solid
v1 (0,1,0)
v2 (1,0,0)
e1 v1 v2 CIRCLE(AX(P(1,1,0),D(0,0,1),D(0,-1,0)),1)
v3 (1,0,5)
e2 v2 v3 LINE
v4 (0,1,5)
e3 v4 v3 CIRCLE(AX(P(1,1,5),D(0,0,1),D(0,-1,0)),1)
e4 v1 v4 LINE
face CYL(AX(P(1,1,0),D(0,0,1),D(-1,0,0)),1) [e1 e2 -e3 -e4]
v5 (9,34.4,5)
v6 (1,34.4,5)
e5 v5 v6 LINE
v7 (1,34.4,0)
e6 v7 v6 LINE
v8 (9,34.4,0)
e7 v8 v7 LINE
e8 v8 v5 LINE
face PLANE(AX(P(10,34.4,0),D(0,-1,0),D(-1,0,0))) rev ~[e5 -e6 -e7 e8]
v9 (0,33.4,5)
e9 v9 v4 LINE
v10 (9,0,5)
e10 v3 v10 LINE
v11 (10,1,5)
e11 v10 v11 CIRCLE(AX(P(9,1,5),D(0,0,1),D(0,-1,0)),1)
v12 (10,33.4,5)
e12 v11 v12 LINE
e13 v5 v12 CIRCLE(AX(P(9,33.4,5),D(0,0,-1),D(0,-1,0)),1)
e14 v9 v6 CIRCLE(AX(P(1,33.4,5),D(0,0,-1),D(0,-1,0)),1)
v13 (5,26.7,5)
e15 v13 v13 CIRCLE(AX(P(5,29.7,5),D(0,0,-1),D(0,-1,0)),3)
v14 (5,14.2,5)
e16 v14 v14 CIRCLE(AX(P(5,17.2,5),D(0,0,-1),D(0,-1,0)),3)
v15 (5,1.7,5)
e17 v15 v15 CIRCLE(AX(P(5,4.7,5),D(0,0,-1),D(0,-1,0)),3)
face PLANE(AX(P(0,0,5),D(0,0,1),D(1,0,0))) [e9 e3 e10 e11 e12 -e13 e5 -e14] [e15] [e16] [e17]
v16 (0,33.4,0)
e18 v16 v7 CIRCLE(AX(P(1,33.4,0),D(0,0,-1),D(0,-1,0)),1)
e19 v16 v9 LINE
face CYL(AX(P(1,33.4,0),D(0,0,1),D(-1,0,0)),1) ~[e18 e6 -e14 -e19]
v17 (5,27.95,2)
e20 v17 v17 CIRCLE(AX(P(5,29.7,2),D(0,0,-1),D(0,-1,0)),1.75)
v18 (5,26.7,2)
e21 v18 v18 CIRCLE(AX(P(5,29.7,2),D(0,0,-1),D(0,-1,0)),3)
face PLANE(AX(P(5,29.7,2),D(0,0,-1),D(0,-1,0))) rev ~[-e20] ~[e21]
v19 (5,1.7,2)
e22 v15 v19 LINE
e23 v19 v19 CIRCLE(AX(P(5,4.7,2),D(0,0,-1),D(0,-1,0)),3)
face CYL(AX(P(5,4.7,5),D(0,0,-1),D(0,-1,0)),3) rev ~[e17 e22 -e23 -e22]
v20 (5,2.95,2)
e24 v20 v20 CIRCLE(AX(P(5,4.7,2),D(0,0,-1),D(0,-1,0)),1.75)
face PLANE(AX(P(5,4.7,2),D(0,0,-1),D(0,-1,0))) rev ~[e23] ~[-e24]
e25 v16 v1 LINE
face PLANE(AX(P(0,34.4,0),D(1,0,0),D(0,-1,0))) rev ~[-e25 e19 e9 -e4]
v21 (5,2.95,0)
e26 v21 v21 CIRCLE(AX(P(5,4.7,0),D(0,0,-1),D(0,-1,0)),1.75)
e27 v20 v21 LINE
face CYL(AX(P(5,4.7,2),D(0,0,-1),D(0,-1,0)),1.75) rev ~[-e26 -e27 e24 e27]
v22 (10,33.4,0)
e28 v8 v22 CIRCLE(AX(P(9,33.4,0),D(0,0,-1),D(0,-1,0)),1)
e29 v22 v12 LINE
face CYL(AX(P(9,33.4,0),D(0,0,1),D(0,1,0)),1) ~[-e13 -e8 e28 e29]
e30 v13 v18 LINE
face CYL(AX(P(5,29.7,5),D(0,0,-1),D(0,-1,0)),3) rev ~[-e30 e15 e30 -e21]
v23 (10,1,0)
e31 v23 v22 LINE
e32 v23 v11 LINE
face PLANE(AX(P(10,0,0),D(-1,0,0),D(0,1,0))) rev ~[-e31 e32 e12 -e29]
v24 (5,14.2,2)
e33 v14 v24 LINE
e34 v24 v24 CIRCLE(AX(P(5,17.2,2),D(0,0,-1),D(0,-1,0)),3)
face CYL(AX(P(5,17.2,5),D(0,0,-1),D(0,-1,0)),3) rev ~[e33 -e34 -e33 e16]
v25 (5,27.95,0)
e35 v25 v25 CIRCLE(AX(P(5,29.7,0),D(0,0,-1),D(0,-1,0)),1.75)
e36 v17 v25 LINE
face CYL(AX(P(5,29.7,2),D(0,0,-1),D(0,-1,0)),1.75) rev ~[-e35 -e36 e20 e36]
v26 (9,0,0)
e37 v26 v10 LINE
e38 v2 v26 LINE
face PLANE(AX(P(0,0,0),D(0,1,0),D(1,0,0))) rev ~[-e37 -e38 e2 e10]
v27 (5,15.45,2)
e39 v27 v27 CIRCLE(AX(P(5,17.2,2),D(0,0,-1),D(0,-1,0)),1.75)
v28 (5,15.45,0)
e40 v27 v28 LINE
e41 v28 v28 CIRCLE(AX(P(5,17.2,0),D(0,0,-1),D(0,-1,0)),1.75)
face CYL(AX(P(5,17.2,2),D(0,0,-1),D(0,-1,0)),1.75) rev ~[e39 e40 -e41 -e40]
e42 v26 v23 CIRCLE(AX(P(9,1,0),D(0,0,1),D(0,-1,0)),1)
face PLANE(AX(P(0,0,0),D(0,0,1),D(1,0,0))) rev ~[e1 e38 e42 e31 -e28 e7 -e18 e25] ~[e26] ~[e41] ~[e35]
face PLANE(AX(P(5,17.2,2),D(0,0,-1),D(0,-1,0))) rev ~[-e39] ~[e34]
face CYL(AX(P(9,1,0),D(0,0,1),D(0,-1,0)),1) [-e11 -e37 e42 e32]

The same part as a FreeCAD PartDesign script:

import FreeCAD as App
import Part
import Sketcher
Q = App.Units.Quantity


def edges_at(feature, points):
    """Names of the edges that pass closest to the given points."""
    edges = feature.Shape.Edges
    near = lambda p: min(range(len(edges)), key=lambda i: edges[i].distToShape(Part.Vertex(*p))[0])
    return sorted({f"Edge{near(p) + 1}" for p in points})


def add_polygon(sketch, points):
    """Adds a closed chain of lines whose ends are joined by coincident constraints."""
    first, n = sketch.GeometryCount, len(points)
    for a, b in zip(points, points[1:] + points[:1]):
        sketch.addGeometry(Part.LineSegment(App.Vector(*a, 0), App.Vector(*b, 0)), False)
    for i in range(n):
        sketch.addConstraint(Sketcher.Constraint("Coincident", first + i, 2, first + (i + 1) % n, 1))

doc = App.newDocument("Part")
body = doc.addObject("PartDesign::Body", "Body")

sketch1 = body.newObject("Sketcher::SketchObject", "Sketch")
sketch1.AttachmentSupport = (doc.getObject("XY_Plane"), [""])
sketch1.MapMode = "FlatFace"
add_polygon(sketch1, [(0, 34.4), (0, 0), (10, 0), (10, 34.4)])
sketch1.addConstraint([
    Sketcher.Constraint("Vertical", 0),
    Sketcher.Constraint("Horizontal", 1),
    Sketcher.Constraint("Vertical", 2),
    Sketcher.Constraint("Horizontal", 3),
    Sketcher.Constraint("Coincident", 0, 2, -1, 1),
    Sketcher.Constraint("DistanceX", 1, 1, 1, 2, Q("10 mm")),
    Sketcher.Constraint("DistanceY", 0, 2, 0, 1, Q("34.4 mm")),
])
pad1 = body.newObject("PartDesign::Pad", "Pad")
pad1.Profile = sketch1
pad1.Length = 5

sketch2 = body.newObject("Sketcher::SketchObject", "Sketch001")
sketch2.AttachmentSupport = (doc.getObject("XY_Plane"), [""])
sketch2.MapMode = "FlatFace"
sketch2.AttachmentOffset = App.Placement(App.Vector(0, 0, 5), App.Rotation())
sketch2.addGeometry([
    Part.Circle(App.Vector(5, 29.7, 0), App.Vector(0, 0, 1), 1.75),
    Part.Circle(App.Vector(5, 4.7, 0), App.Vector(0, 0, 1), 1.75),
    Part.Circle(App.Vector(5, 17.2, 0), App.Vector(0, 0, 1), 1.75),
], False)
sketch2.addConstraint([
    Sketcher.Constraint("Equal", 0, 1),
    Sketcher.Constraint("Equal", 1, 2),
    Sketcher.Constraint("Vertical", 0, 3, 1, 3),
    Sketcher.Constraint("Vertical", 1, 3, 2, 3),
    Sketcher.Constraint("Diameter", 0, Q("3.5 mm")),
    Sketcher.Constraint("DistanceX", -1, 1, 0, 3, Q("5 mm")),
    Sketcher.Constraint("DistanceY", 1, 3, 0, 3, Q("25 mm")),
    Sketcher.Constraint("DistanceY", -1, 1, 0, 3, Q("29.7 mm")),
    Sketcher.Constraint("DistanceY", -1, 1, 2, 3, Q("17.2 mm")),
])
doc.recompute()
hole = body.newObject("PartDesign::Hole", "Hole")
hole.Profile = sketch2
hole.ThreadType = "None"
hole.Diameter = 3.5
hole.DepthType = "ThroughAll"
hole.HoleCutType = "Counterbore"
hole.HoleCutDiameter = 6
hole.HoleCutDepth = 3
doc.recompute()

fillet = body.newObject("PartDesign::Fillet", "Fillet")
fillet.Base = (hole, edges_at(hole, [
    (0, 34.4, 2.5),
    (10, 34.4, 2.5),
    (10, 0, 2.5),
    (0, 0, 2.5),
]))
fillet.Radius = 1

doc.recompute()
